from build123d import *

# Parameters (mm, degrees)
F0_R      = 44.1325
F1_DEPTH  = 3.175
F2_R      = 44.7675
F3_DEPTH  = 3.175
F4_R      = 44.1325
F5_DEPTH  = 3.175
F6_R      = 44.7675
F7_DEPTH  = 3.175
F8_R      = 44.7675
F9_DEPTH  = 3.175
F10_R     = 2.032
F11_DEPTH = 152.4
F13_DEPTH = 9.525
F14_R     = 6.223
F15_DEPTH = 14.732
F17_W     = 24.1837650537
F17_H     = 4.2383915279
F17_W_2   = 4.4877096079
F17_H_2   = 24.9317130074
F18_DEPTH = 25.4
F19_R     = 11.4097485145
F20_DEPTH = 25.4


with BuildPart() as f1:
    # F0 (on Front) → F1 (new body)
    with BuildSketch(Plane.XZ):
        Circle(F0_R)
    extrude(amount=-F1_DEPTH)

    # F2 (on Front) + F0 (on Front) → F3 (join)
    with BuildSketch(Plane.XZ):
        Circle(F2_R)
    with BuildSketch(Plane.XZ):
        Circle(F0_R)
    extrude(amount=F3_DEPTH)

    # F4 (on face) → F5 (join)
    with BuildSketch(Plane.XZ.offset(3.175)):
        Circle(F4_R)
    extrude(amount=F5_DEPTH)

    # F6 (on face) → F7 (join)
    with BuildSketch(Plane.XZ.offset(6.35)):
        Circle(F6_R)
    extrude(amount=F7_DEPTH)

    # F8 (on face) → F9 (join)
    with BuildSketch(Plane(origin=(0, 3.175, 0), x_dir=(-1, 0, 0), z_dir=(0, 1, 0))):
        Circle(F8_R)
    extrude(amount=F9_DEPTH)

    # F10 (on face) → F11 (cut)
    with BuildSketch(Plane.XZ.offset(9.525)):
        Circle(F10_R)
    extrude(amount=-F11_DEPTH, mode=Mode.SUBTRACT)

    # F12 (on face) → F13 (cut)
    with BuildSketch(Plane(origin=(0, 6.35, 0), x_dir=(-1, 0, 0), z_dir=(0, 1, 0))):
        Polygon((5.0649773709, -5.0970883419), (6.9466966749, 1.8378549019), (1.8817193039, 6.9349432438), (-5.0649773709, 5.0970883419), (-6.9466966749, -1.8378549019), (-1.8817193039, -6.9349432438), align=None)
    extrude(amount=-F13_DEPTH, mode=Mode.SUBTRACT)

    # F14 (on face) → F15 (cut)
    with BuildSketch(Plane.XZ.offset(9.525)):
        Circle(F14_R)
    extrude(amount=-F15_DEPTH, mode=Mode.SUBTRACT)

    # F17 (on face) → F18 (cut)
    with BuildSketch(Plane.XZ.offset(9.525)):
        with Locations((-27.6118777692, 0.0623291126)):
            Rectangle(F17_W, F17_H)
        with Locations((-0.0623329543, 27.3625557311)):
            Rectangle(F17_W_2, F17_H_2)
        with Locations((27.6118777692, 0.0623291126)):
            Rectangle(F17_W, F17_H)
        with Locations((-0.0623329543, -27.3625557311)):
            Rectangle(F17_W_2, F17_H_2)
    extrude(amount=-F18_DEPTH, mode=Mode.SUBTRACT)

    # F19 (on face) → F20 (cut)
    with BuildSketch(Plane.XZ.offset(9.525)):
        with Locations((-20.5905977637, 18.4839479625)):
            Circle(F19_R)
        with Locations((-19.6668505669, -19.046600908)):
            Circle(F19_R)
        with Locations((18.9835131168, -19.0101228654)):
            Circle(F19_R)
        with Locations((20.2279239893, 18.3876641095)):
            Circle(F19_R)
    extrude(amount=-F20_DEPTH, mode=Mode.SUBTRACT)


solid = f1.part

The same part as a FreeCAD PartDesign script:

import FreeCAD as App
import Part
import Sketcher

V = App.Vector
Q = App.Units.Quantity

doc = App.newDocument("Part")
body = doc.addObject("PartDesign::Body", "Body")

# Sketch on XZ plane
sketch1 = body.newObject("Sketcher::SketchObject", "Sketch")
sketch1.AttachmentSupport = (doc.getObject("XZ_Plane"), [""])
sketch1.MapMode = "FlatFace"
sketch1.addGeometry(Part.Circle(V(0, 0, 0), V(0, 0, 1), 44), False)
sketch1.addConstraint(Sketcher.Constraint("Coincident", 0, 3, -1, 1))
sketch1.addConstraint(Sketcher.Constraint("Diameter", 0, Q("3.475 in")))
pad1 = body.newObject("PartDesign::Pad", "Pad")
pad1.Profile = sketch1
pad1.Length = Q("0.125 in")
pad1.Reversed = True

# Sketch on XZ plane
sketch2 = body.newObject("Sketcher::SketchObject", "Sketch001")
sketch2.AttachmentSupport = (doc.getObject("XZ_Plane"), [""])
sketch2.MapMode = "FlatFace"
sketch2.addGeometry(Part.Circle(V(0, 0, 0), V(0, 0, 1), 45), False)
sketch2.addConstraint(Sketcher.Constraint("Coincident", 0, 3, -1, 1))
sketch2.addConstraint(Sketcher.Constraint("Diameter", 0, Q("3.525 in")))
pad2 = body.newObject("PartDesign::Pad", "Pad001")
pad2.Profile = sketch2
pad2.Length = Q("0.125 in")

# Sketch on XZ plane
sketch3 = body.newObject("Sketcher::SketchObject", "Sketch002")
sketch3.AttachmentSupport = (doc.getObject("XZ_Plane"), [""])
sketch3.MapMode = "FlatFace"
sketch3.AttachmentOffset = App.Placement(V(0, 0, 0.125 * 25.4), App.Rotation())
sketch3.addGeometry(Part.Circle(V(0, 0, 0), V(0, 0, 1), 44), False)
sketch3.addConstraint(Sketcher.Constraint("Coincident", 0, 3, -1, 1))
sketch3.addConstraint(Sketcher.Constraint("Diameter", 0, Q("3.475 in")))
pad3 = body.newObject("PartDesign::Pad", "Pad002")
pad3.Profile = sketch3
pad3.Length = Q("0.125 in")

# Sketch on XZ plane
sketch4 = body.newObject("Sketcher::SketchObject", "Sketch003")
sketch4.AttachmentSupport = (doc.getObject("XZ_Plane"), [""])
sketch4.MapMode = "FlatFace"
sketch4.AttachmentOffset = App.Placement(V(0, 0, 0.25 * 25.4), App.Rotation())
sketch4.addGeometry(Part.Circle(V(0, 0, 0), V(0, 0, 1), 45), False)
sketch4.addConstraint(Sketcher.Constraint("Coincident", 0, 3, -1, 1))
sketch4.addConstraint(Sketcher.Constraint("Diameter", 0, Q("3.525 in")))
pad4 = body.newObject("PartDesign::Pad", "Pad003")
pad4.Profile = sketch4
pad4.Length = Q("0.125 in")

# Sketch on XZ plane
sketch5 = body.newObject("Sketcher::SketchObject", "Sketch004")
sketch5.AttachmentSupport = (doc.getObject("XZ_Plane"), [""])
sketch5.MapMode = "FlatFace"
sketch5.AttachmentOffset = App.Placement(V(0, 0, -0.125 * 25.4), App.Rotation())
sketch5.addGeometry(Part.Circle(V(0, 0, 0), V(0, 0, 1), 45), False)
sketch5.addConstraint(Sketcher.Constraint("Coincident", 0, 3, -1, 1))
sketch5.addConstraint(Sketcher.Constraint("Diameter", 0, Q("3.525 in")))
pad5 = body.newObject("PartDesign::Pad", "Pad004")
pad5.Profile = sketch5
pad5.Length = Q("0.125 in")
pad5.Reversed = True

# Sketch on XZ plane
sketch6 = body.newObject("Sketcher::SketchObject", "Sketch005")
sketch6.AttachmentSupport = (doc.getObject("XZ_Plane"), [""])
sketch6.MapMode = "FlatFace"
sketch6.AttachmentOffset = App.Placement(V(0, 0, 0.375 * 25.4), App.Rotation())
sketch6.addGeometry(Part.Circle(V(0, 0, 0), V(0, 0, 1), 2), False)
sketch6.addConstraint(Sketcher.Constraint("Coincident", 0, 3, -1, 1))
sketch6.addConstraint(Sketcher.Constraint("Diameter", 0, Q("0.16 in")))
pocket1 = body.newObject("PartDesign::Pocket", "Pocket")
pocket1.Profile = sketch6
pocket1.Length = Q("6 in")

# Sketch on XZ plane
sketch7 = body.newObject("Sketcher::SketchObject", "Sketch006")
sketch7.AttachmentSupport = (doc.getObject("XZ_Plane"), [""])
sketch7.MapMode = "FlatFace"
sketch7.AttachmentOffset = App.Placement(V(0, 0, -0.25 * 25.4), App.Rotation())
sketch7.addGeometry(Part.LineSegment(V(-5, -5, 0), V(-7, 2, 0)), False)
sketch7.addGeometry(Part.LineSegment(V(-7, 2, 0), V(-2, 7, 0)), False)
sketch7.addGeometry(Part.LineSegment(V(-2, 7, 0), V(5, 5, 0)), False)
sketch7.addGeometry(Part.LineSegment(V(5, 5, 0), V(7, -2, 0)), False)
sketch7.addGeometry(Part.LineSegment(V(7, -2, 0), V(2, -7, 0)), False)
sketch7.addGeometry(Part.LineSegment(V(2, -7, 0), V(-5, -5, 0)), False)
sketch7.addConstraint(Sketcher.Constraint("Coincident", 0, 2, 1, 1))
sketch7.addConstraint(Sketcher.Constraint("Coincident", 1, 2, 2, 1))
sketch7.addConstraint(Sketcher.Constraint("Coincident", 2, 2, 3, 1))
sketch7.addConstraint(Sketcher.Constraint("Coincident", 3, 2, 4, 1))
sketch7.addConstraint(Sketcher.Constraint("Coincident", 4, 2, 5, 1))
sketch7.addConstraint(Sketcher.Constraint("Coincident", 5, 2, 0, 1))
sketch7.addConstraint(Sketcher.Constraint("Symmetric", 0, 2, 3, 2, -1, 1))
sketch7.addConstraint(Sketcher.Constraint("Symmetric", 1, 2, 4, 2, -1, 1))
sketch7.addConstraint(Sketcher.Constraint("Symmetric", 2, 2, 5, 2, -1, 1))
sketch7.addConstraint(Sketcher.Constraint("Equal", 0, 1))
sketch7.addConstraint(Sketcher.Constraint("Equal", 1, 2))
sketch7.addConstraint(Sketcher.Constraint("Distance", 0, 7.185701))
sketch7.addConstraint(Sketcher.Constraint("DistanceY", 3, 2, 1, 2, 8.772798))
sketch7.addConstraint(Sketcher.Constraint("DistanceX", 1, 2, -1, 1, 1.881719))
sketch7.addConstraint(Sketcher.Constraint("DistanceY", -1, 1, 2, 2, 5.097088))
pocket2 = body.newObject("PartDesign::Pocket", "Pocket001")
pocket2.Profile = sketch7
pocket2.Length = Q("0.375 in")
pocket2.Reversed = True

# Sketch on XZ plane
sketch8 = body.newObject("Sketcher::SketchObject", "Sketch007")
sketch8.AttachmentSupport = (doc.getObject("XZ_Plane"), [""])
sketch8.MapMode = "FlatFace"
sketch8.AttachmentOffset = App.Placement(V(0, 0, 0.375 * 25.4), App.Rotation())
sketch8.addGeometry(Part.Circle(V(0, 0, 0), V(0, 0, 1), 6), False)
sketch8.addConstraint(Sketcher.Constraint("Coincident", 0, 3, -1, 1))
sketch8.addConstraint(Sketcher.Constraint("Diameter", 0, Q("0.49 in")))
pocket3 = body.newObject("PartDesign::Pocket", "Pocket002")
pocket3.Profile = sketch8
pocket3.Length = Q("0.58 in")

# Sketch on XZ plane
sketch9 = body.newObject("Sketcher::SketchObject", "Sketch008")
sketch9.AttachmentSupport = (doc.getObject("XZ_Plane"), [""])
sketch9.MapMode = "FlatFace"
sketch9.AttachmentOffset = App.Placement(V(0, 0, 0.375 * 25.4), App.Rotation())
sketch9.addGeometry(Part.LineSegment(V(-39.7, 2.2, 0), V(-39.7, -2.1, 0)), False)
sketch9.addGeometry(Part.LineSegment(V(-39.7, -2.1, 0), V(-15.5, -2.1, 0)), False)
sketch9.addGeometry(Part.LineSegment(V(-15.5, -2.1, 0), V(-15.5, 2.2, 0)), False)
sketch9.addGeometry(Part.LineSegment(V(-15.5, 2.2, 0), V(-39.7, 2.2, 0)), False)
sketch9.addGeometry(Part.LineSegment(V(-2.3, 39.8, 0), V(-2.3, 14.9, 0)), False)
sketch9.addGeometry(Part.LineSegment(V(-2.3, 14.9, 0), V(2.2, 14.9, 0)), False)
sketch9.addGeometry(Part.LineSegment(V(2.2, 14.9, 0), V(2.2, 39.8, 0)), False)
sketch9.addGeometry(Part.LineSegment(V(2.2, 39.8, 0), V(-2.3, 39.8, 0)), False)
sketch9.addGeometry(Part.LineSegment(V(15.5, 2.2, 0), V(15.5, -2.1, 0)), False)
sketch9.addGeometry(Part.LineSegment(V(15.5, -2.1, 0), V(39.7, -2.1, 0)), False)
sketch9.addGeometry(Part.LineSegment(V(39.7, -2.1, 0), V(39.7, 2.2, 0)), False)
sketch9.addGeometry(Part.LineSegment(V(39.7, 2.2, 0), V(15.5, 2.2, 0)), False)
sketch9.addGeometry(Part.LineSegment(V(-2.3, -14.9, 0), V(-2.3, -39.8, 0)), False)
sketch9.addGeometry(Part.LineSegment(V(-2.3, -39.8, 0), V(2.2, -39.8, 0)), False)
sketch9.addGeometry(Part.LineSegment(V(2.2, -39.8, 0), V(2.2, -14.9, 0)), False)
sketch9.addGeometry(Part.LineSegment(V(2.2, -14.9, 0), V(-2.3, -14.9, 0)), False)
sketch9.addConstraint(Sketcher.Constraint("Coincident", 0, 2, 1, 1))
sketch9.addConstraint(Sketcher.Constraint("Coincident", 1, 2, 2, 1))
sketch9.addConstraint(Sketcher.Constraint("Coincident", 2, 2, 3, 1))
sketch9.addConstraint(Sketcher.Constraint("Coincident", 3, 2, 0, 1))
sketch9.addConstraint(Sketcher.Constraint("Coincident", 4, 2, 5, 1))
sketch9.addConstraint(Sketcher.Constraint("Coincident", 5, 2, 6, 1))
sketch9.addConstraint(Sketcher.Constraint("Coincident", 6, 2, 7, 1))
sketch9.addConstraint(Sketcher.Constraint("Coincident", 7, 2, 4, 1))
sketch9.addConstraint(Sketcher.Constraint("Coincident", 8, 2, 9, 1))
sketch9.addConstraint(Sketcher.Constraint("Coincident", 9, 2, 10, 1))
sketch9.addConstraint(Sketcher.Constraint("Coincident", 10, 2, 11, 1))
sketch9.addConstraint(Sketcher.Constraint("Coincident", 11, 2, 8, 1))
sketch9.addConstraint(Sketcher.Constraint("Coincident", 12, 2, 13, 1))
sketch9.addConstraint(Sketcher.Constraint("Coincident", 13, 2, 14, 1))
sketch9.addConstraint(Sketcher.Constraint("Coincident", 14, 2, 15, 1))
sketch9.addConstraint(Sketcher.Constraint("Coincident", 15, 2, 12, 1))
sketch9.addConstraint(Sketcher.Constraint("Vertical", 0))
sketch9.addConstraint(Sketcher.Constraint("Horizontal", 1))
sketch9.addConstraint(Sketcher.Constraint("Vertical", 2))
sketch9.addConstraint(Sketcher.Constraint("Horizontal", 3))
sketch9.addConstraint(Sketcher.Constraint("Vertical", 4))
sketch9.addConstraint(Sketcher.Constraint("Horizontal", 5))
sketch9.addConstraint(Sketcher.Constraint("Vertical", 6))
sketch9.addConstraint(Sketcher.Constraint("Horizontal", 7))
sketch9.addConstraint(Sketcher.Constraint("Vertical", 8))
sketch9.addConstraint(Sketcher.Constraint("Horizontal", 9))
sketch9.addConstraint(Sketcher.Constraint("Vertical", 10))
sketch9.addConstraint(Sketcher.Constraint("Horizontal", 11))
sketch9.addConstraint(Sketcher.Constraint("Vertical", 12))
sketch9.addConstraint(Sketcher.Constraint("Horizontal", 13))
sketch9.addConstraint(Sketcher.Constraint("Vertical", 14))
sketch9.addConstraint(Sketcher.Constraint("Horizontal", 15))
sketch9.addConstraint(Sketcher.Constraint("Symmetric", 1, 2, 8, 2, -2))
sketch9.addConstraint(Sketcher.Constraint("Symmetric", 3, 2, 10, 2, -2))
sketch9.addConstraint(Sketcher.Constraint("Symmetric", 7, 2, 12, 2, -1))
sketch9.addConstraint(Sketcher.Constraint("Symmetric", 5, 2, 14, 2, -1))
sketch9.addConstraint(Sketcher.Constraint("DistanceX", 5, 1, 5, 2, 4.48771))
sketch9.addConstraint(Sketcher.Constraint("DistanceY", 0, 2, 0, 1, 4.238392))
sketch9.addConstraint(Sketcher.Constraint("DistanceY", -1, 1, 4, 2, 14.896699))
sketch9.addConstraint(Sketcher.Constraint("DistanceX", 1, 1, 1, 2, 24.183765))
sketch9.addConstraint(Sketcher.Constraint("DistanceY", 4, 2, 4, 1, 24.931713))
sketch9.addConstraint(Sketcher.Constraint("DistanceX", 0, 2, -1, 1, 39.70376))
sketch9.addConstraint(Sketcher.Constraint("DistanceX", -1, 1, 5, 2, 2.181522))
sketch9.addConstraint(Sketcher.Constraint("DistanceY", 1, 2, 6, 2, 41.885279))
pocket4 = body.newObject("PartDesign::Pocket", "Pocket003")
pocket4.Profile = sketch9
pocket4.Length = Q("1 in")

# Sketch on XZ plane
sketch10 = body.newObject("Sketcher::SketchObject", "Sketch009")
sketch10.AttachmentSupport = (doc.getObject("XZ_Plane"), [""])
sketch10.MapMode = "FlatFace"
sketch10.AttachmentOffset = App.Placement(V(0, 0, 0.375 * 25.4), App.Rotation())
sketch10.addGeometry(Part.Circle(V(-21, 18, 0), V(0, 0, 1), 11), False)
sketch10.addGeometry(Part.Circle(V(-20, -19, 0), V(0, 0, 1), 11), False)
sketch10.addGeometry(Part.Circle(V(19, -19, 0), V(0, 0, 1), 11), False)
sketch10.addGeometry(Part.Circle(V(20, 18, 0), V(0, 0, 1), 11), False)
sketch10.addConstraint(Sketcher.Constraint("Equal", 0, 1))
sketch10.addConstraint(Sketcher.Constraint("Equal", 1, 2))
sketch10.addConstraint(Sketcher.Constraint("Equal", 2, 3))
sketch10.addConstraint(Sketcher.Constraint("Diameter", 0, 22.819497))
sketch10.addConstraint(Sketcher.Constraint("DistanceY", 1, 3, -1, 1, 19.046601))
sketch10.addConstraint(Sketcher.Constraint("DistanceX", 1, 3, -1, 1, 19.666851))
sketch10.addConstraint(Sketcher.Constraint("DistanceY", 1, 3, 0, 3, 37.530549))
sketch10.addConstraint(Sketcher.Constraint("DistanceY", 1, 3, 2, 3, 0.036478))
sketch10.addConstraint(Sketcher.Constraint("DistanceX", 0, 3, 2, 3, 39.574111))
sketch10.addConstraint(Sketcher.Constraint("DistanceX", 2, 3, 3, 3, 1.244411))
sketch10.addConstraint(Sketcher.Constraint("DistanceX", 0, 3, -1, 1, 20.590598))
sketch10.addConstraint(Sketcher.Constraint("DistanceY", -1, 1, 3, 3, 18.387664))
pocket5 = body.newObject("PartDesign::Pocket", "Pocket004")
pocket5.Profile = sketch10
pocket5.Length = Q("1 in")

doc.recompute()
